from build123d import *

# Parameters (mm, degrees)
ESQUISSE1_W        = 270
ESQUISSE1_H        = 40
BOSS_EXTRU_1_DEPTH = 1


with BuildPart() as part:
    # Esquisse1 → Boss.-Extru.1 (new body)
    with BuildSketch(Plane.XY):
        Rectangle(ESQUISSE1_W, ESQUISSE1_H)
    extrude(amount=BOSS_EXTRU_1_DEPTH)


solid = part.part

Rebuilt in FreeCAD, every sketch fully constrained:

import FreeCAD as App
import Part
import Sketcher
from FreeCAD import Vector

doc = App.newDocument("Part")
body = doc.addObject("PartDesign::Body", "Body")

# Sketch on XY plane
sketch1 = body.newObject("Sketcher::SketchObject", "Sketch")
sketch1.AttachmentSupport = (doc.getObject("XY_Plane"), [""])
sketch1.MapMode = "FlatFace"
sketch1.addGeometry([
    Part.LineSegment(Vector(-135, 20, 0), Vector(-135, -20, 0)),
    Part.LineSegment(Vector(-135, -20, 0), Vector(135, -20, 0)),
    Part.LineSegment(Vector(135, -20, 0), Vector(135, 20, 0)),
    Part.LineSegment(Vector(135, 20, 0), Vector(-135, 20, 0)),
], False)
sketch1.addConstraint([
    Sketcher.Constraint("Coincident", 0, 2, 1, 1),
    Sketcher.Constraint("Coincident", 1, 2, 2, 1),
    Sketcher.Constraint("Coincident", 2, 2, 3, 1),
    Sketcher.Constraint("Coincident", 3, 2, 0, 1),
    Sketcher.Constraint("Vertical", 0),
    Sketcher.Constraint("Horizontal", 1),
    Sketcher.Constraint("Vertical", 2),
    Sketcher.Constraint("Horizontal", 3),
    Sketcher.Constraint("Symmetric", 0, 2, 2, 2, -1, 1),
    Sketcher.Constraint("DistanceX", 1, 1, 1, 2, 270.0),
    Sketcher.Constraint("DistanceY", 0, 2, 0, 1, 40.0),
])
pad1 = body.newObject("PartDesign::Pad", "Pad")
pad1.Profile = sketch1
pad1.Length = 1

doc.recompute()
